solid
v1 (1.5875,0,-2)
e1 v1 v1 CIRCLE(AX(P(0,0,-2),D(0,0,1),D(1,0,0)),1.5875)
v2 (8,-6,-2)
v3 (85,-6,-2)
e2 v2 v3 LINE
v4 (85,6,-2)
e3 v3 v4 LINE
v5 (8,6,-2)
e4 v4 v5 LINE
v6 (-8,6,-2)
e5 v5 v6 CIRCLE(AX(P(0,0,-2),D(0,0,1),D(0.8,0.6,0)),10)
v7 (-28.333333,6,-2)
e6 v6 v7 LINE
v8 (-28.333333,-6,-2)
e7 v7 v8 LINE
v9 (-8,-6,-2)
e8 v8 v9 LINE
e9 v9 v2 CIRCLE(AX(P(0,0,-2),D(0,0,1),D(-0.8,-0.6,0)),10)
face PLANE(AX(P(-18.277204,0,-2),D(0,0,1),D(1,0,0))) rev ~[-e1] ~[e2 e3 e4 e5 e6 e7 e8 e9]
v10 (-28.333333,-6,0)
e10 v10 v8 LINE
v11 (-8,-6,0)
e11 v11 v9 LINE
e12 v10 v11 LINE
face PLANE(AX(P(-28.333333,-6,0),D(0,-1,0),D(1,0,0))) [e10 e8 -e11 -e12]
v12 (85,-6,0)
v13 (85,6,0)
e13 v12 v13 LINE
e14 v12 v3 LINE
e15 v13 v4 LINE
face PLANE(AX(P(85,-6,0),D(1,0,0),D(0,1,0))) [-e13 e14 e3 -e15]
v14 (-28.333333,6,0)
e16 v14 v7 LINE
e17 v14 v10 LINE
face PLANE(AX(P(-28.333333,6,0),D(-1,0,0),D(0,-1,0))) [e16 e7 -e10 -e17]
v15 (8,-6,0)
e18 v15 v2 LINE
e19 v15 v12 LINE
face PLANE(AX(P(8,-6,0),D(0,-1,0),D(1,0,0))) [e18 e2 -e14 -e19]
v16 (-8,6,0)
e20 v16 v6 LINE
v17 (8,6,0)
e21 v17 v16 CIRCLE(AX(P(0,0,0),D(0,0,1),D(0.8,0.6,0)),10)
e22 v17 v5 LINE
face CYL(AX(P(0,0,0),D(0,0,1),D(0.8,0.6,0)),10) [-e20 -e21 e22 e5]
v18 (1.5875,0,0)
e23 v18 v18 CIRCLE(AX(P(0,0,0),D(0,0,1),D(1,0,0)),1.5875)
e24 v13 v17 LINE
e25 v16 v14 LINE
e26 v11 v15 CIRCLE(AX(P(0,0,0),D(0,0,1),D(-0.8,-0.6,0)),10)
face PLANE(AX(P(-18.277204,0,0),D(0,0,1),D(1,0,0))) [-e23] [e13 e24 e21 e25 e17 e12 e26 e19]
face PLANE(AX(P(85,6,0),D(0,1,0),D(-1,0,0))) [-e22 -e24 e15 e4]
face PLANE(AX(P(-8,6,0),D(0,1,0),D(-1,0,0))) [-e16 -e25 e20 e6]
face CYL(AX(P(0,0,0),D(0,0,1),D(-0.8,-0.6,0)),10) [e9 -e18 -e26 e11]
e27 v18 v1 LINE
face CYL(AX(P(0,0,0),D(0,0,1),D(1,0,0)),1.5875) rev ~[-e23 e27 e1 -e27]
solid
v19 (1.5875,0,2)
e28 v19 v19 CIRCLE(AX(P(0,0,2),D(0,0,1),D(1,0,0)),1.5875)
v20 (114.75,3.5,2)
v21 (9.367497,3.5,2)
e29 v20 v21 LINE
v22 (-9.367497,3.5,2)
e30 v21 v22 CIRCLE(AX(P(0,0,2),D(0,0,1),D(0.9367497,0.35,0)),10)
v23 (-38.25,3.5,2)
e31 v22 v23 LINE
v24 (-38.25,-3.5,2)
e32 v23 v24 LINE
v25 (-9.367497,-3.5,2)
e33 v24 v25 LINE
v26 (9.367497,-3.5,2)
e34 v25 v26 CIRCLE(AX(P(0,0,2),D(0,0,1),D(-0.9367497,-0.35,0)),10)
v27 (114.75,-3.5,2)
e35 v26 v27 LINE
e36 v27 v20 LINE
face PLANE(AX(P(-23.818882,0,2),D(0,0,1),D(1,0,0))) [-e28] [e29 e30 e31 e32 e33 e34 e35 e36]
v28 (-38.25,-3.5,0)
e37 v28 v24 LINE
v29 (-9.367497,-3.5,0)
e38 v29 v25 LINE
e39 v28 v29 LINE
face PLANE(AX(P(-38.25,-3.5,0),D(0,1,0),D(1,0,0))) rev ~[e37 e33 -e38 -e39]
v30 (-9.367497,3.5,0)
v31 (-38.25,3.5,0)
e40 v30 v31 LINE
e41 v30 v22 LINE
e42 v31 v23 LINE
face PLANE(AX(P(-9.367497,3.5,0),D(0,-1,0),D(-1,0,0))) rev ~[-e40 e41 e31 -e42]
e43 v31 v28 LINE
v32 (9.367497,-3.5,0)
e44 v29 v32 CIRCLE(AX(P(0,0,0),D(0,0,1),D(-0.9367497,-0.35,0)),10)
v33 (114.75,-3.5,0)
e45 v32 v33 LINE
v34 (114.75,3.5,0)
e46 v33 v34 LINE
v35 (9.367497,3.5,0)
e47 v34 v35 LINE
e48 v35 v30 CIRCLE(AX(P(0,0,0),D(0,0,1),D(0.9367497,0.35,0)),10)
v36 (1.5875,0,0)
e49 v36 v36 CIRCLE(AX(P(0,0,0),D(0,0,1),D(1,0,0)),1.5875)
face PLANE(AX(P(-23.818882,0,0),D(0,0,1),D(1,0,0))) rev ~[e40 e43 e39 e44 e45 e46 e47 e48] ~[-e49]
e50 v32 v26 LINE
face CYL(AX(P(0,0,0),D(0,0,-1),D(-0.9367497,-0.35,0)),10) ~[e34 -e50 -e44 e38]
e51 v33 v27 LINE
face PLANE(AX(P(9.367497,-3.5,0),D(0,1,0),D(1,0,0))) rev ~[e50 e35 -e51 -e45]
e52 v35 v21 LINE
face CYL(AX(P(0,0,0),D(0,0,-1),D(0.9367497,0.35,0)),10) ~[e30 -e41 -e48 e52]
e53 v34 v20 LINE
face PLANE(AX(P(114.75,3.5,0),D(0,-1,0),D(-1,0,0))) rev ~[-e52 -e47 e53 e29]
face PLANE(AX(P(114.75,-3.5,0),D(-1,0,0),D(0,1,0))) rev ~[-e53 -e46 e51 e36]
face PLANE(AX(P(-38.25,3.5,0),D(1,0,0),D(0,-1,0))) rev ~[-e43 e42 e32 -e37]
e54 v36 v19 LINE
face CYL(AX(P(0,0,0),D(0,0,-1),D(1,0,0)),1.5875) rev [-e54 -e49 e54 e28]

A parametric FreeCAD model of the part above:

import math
import FreeCAD as App
import Part
import Sketcher
Q = App.Units.Quantity

doc = App.newDocument("Part")
body = doc.addObject("PartDesign::Body", "Body")

# Sketch on XY plane
sketch1 = doc.addObject("Sketcher::SketchObject", "Sketch")
body.addObject(sketch1)
sketch1.AttachmentSupport = (doc.XY_Plane, [""])
sketch1.MapMode = "FlatFace"
sketch1.addGeometry(Part.LineSegment(App.Vector(-9.367497, 3.5, 0), App.Vector(-38.25, 3.5, 0)), False)
sketch1.addGeometry(Part.LineSegment(App.Vector(-38.25, 3.5, 0), App.Vector(-38.25, -3.5, 0)), False)
sketch1.addGeometry(Part.LineSegment(App.Vector(-38.25, -3.5, 0), App.Vector(-9.367497, -3.5, 0)), False)
sketch1.addGeometry(Part.ArcOfCircle(Part.Circle(App.Vector(0, 0, 0), App.Vector(0, 0, 1), 10), math.radians(-159.512685), math.radians(-20.487315)), False)
sketch1.addGeometry(Part.LineSegment(App.Vector(9.367497, -3.5, 0), App.Vector(114.75, -3.5, 0)), False)
sketch1.addGeometry(Part.LineSegment(App.Vector(114.75, -3.5, 0), App.Vector(114.75, 3.5, 0)), False)
sketch1.addGeometry(Part.LineSegment(App.Vector(114.75, 3.5, 0), App.Vector(9.367497, 3.5, 0)), False)
sketch1.addGeometry(Part.ArcOfCircle(Part.Circle(App.Vector(0, 0, 0), App.Vector(0, 0, 1), 10), math.radians(20.487315), math.radians(159.512685)), False)
sketch1.addGeometry(Part.Circle(App.Vector(0, 0, 0), App.Vector(0, 0, 1), 1.5875), False)
sketch1.addConstraint(Sketcher.Constraint("Coincident", 0, 2, 1, 1))
sketch1.addConstraint(Sketcher.Constraint("Coincident", 1, 2, 2, 1))
sketch1.addConstraint(Sketcher.Constraint("Coincident", 2, 2, 3, 1))
sketch1.addConstraint(Sketcher.Constraint("Coincident", 3, 2, 4, 1))
sketch1.addConstraint(Sketcher.Constraint("Coincident", 4, 2, 5, 1))
sketch1.addConstraint(Sketcher.Constraint("Coincident", 5, 2, 6, 1))
sketch1.addConstraint(Sketcher.Constraint("Coincident", 6, 2, 7, 1))
sketch1.addConstraint(Sketcher.Constraint("Coincident", 7, 2, 0, 1))
sketch1.addConstraint(Sketcher.Constraint("Horizontal", 0))
sketch1.addConstraint(Sketcher.Constraint("Vertical", 1))
sketch1.addConstraint(Sketcher.Constraint("Horizontal", 2))
sketch1.addConstraint(Sketcher.Constraint("Horizontal", 4))
sketch1.addConstraint(Sketcher.Constraint("Vertical", 5))
sketch1.addConstraint(Sketcher.Constraint("Horizontal", 6))
sketch1.addConstraint(Sketcher.Constraint("Coincident", 3, 3, -1, 1))
sketch1.addConstraint(Sketcher.Constraint("Coincident", 7, 3, -1, 1))
sketch1.addConstraint(Sketcher.Constraint("Coincident", 8, 3, -1, 1))
sketch1.addConstraint(Sketcher.Constraint("Equal", 3, 7))
sketch1.addConstraint(Sketcher.Constraint("Horizontal", 2, 2, 3, 2))
sketch1.addConstraint(Sketcher.Constraint("Horizontal", 0, 2, 5, 2))
sketch1.addConstraint(Sketcher.Constraint("Vertical", 3, 2, 6, 2))
sketch1.addConstraint(Sketcher.Constraint("Radius", 3, Q("10 mm")))
sketch1.addConstraint(Sketcher.Constraint("DistanceY", 1, 2, 1, 1, Q("7 mm")))
sketch1.addConstraint(Sketcher.Constraint("Diameter", 8, Q("3.175 mm")))
sketch1.addConstraint(Sketcher.Constraint("DistanceX", 0, 2, -1, 1, Q("38.25 mm")))
sketch1.addConstraint(Sketcher.Constraint("DistanceX", -1, 1, 4, 2, Q("114.75 mm")))
pad1 = doc.addObject("PartDesign::Pad", "Pad")
body.addObject(pad1)
pad1.Profile = sketch1
pad1.Length = 2
body2 = doc.addObject("PartDesign::Body", "Body001")

# Sketch on XY plane
sketch2 = doc.addObject("Sketcher::SketchObject", "Sketch001")
body2.addObject(sketch2)
sketch2.AttachmentSupport = (doc.getObject("XY_Plane001"), [""])
sketch2.MapMode = "FlatFace"
sketch2.addGeometry(Part.LineSegment(App.Vector(-8, 6, 0), App.Vector(-28.333333, 6, 0)), False)
sketch2.addGeometry(Part.LineSegment(App.Vector(-28.333333, 6, 0), App.Vector(-28.333333, -6, 0)), False)
sketch2.addGeometry(Part.LineSegment(App.Vector(-28.333333, -6, 0), App.Vector(-8, -6, 0)), False)
sketch2.addGeometry(Part.ArcOfCircle(Part.Circle(App.Vector(0, 0, 0), App.Vector(0, 0, 1), 10), math.radians(-143.130102), math.radians(-36.869898)), False)
sketch2.addGeometry(Part.LineSegment(App.Vector(8, -6, 0), App.Vector(85, -6, 0)), False)
sketch2.addGeometry(Part.LineSegment(App.Vector(85, -6, 0), App.Vector(85, 6, 0)), False)
sketch2.addGeometry(Part.LineSegment(App.Vector(85, 6, 0), App.Vector(8, 6, 0)), False)
sketch2.addGeometry(Part.ArcOfCircle(Part.Circle(App.Vector(0, 0, 0), App.Vector(0, 0, 1), 10), math.radians(36.869898), math.radians(143.130102)), False)
sketch2.addGeometry(Part.Circle(App.Vector(0, 0, 0), App.Vector(0, 0, 1), 1.5875), False)
sketch2.addConstraint(Sketcher.Constraint("Coincident", 0, 2, 1, 1))
sketch2.addConstraint(Sketcher.Constraint("Coincident", 1, 2, 2, 1))
sketch2.addConstraint(Sketcher.Constraint("Coincident", 2, 2, 3, 1))
sketch2.addConstraint(Sketcher.Constraint("Coincident", 3, 2, 4, 1))
sketch2.addConstraint(Sketcher.Constraint("Coincident", 4, 2, 5, 1))
sketch2.addConstraint(Sketcher.Constraint("Coincident", 5, 2, 6, 1))
sketch2.addConstraint(Sketcher.Constraint("Coincident", 6, 2, 7, 1))
sketch2.addConstraint(Sketcher.Constraint("Coincident", 7, 2, 0, 1))
sketch2.addConstraint(Sketcher.Constraint("Horizontal", 0))
sketch2.addConstraint(Sketcher.Constraint("Vertical", 1))
sketch2.addConstraint(Sketcher.Constraint("Horizontal", 2))
sketch2.addConstraint(Sketcher.Constraint("Horizontal", 4))
sketch2.addConstraint(Sketcher.Constraint("Vertical", 5))
sketch2.addConstraint(Sketcher.Constraint("Horizontal", 6))
sketch2.addConstraint(Sketcher.Constraint("Coincident", 3, 3, -1, 1))
sketch2.addConstraint(Sketcher.Constraint("Coincident", 7, 3, -1, 1))
sketch2.addConstraint(Sketcher.Constraint("Coincident", 8, 3, -1, 1))
sketch2.addConstraint(Sketcher.Constraint("Equal", 3, 7))
sketch2.addConstraint(Sketcher.Constraint("Horizontal", 2, 2, 3, 2))
sketch2.addConstraint(Sketcher.Constraint("Horizontal", 0, 2, 5, 2))
sketch2.addConstraint(Sketcher.Constraint("Vertical", 3, 2, 6, 2))
sketch2.addConstraint(Sketcher.Constraint("Radius", 3, Q("10 mm")))
sketch2.addConstraint(Sketcher.Constraint("DistanceX", 4, 1, 4, 2, Q("77 mm")))
sketch2.addConstraint(Sketcher.Constraint("DistanceY", 1, 2, 1, 1, Q("12 mm")))
sketch2.addConstraint(Sketcher.Constraint("Diameter", 8, Q("3.175 mm")))
sketch2.addConstraint(Sketcher.Constraint("DistanceX", 0, 2, 0, 1, Q("20.333333 mm")))
pad2 = doc.addObject("PartDesign::Pad", "Pad001")
body2.addObject(pad2)
pad2.Profile = sketch2
pad2.Length = 2
pad2.Reversed = True

doc.recompute()
